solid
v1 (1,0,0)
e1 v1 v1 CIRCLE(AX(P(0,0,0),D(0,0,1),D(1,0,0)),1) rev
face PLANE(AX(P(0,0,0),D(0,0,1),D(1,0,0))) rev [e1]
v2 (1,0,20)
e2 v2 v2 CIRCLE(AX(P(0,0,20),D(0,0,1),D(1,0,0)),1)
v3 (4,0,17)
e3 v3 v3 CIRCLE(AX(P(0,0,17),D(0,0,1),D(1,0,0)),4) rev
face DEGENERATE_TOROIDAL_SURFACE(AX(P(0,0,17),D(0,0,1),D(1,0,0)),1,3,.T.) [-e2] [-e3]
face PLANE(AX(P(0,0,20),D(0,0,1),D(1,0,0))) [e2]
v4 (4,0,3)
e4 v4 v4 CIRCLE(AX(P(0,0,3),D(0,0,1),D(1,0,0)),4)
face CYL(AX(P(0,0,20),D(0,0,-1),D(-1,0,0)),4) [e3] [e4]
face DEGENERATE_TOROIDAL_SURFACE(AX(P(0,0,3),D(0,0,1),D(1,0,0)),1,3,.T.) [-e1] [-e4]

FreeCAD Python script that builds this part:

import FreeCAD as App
import Part
import Sketcher
from FreeCAD import Vector


def edges_at(feature, points):
    """Names of the edges that pass closest to the given points."""
    edges = feature.Shape.Edges
    near = lambda p: min(range(len(edges)), key=lambda i: edges[i].distToShape(Part.Vertex(*p))[0])
    return sorted({f"Edge{near(p) + 1}" for p in points})

doc = App.newDocument("Part")
params = doc.addObject("Spreadsheet::Sheet", "Params")
for row, (alias, value) in enumerate([
    ("sketch1_diameter", "8 mm"),
    ("pad1_length", "20 mm"),
    ("fillet_radius", "3 mm"),
], start=1):
    params.set(f"A{row}", alias)
    params.set(f"B{row}", "=" + value)
    params.setAlias(f"B{row}", alias)

body = doc.addObject("PartDesign::Body", "Body")

sketch1 = doc.addObject("Sketcher::SketchObject", "Sketch")
body.addObject(sketch1)
sketch1.AttachmentSupport = (doc.XY_Plane, [""])
sketch1.MapMode = "FlatFace"
sketch1.addGeometry(Part.Circle(Vector(0, 0, 0), Vector(0, 0, 1), 4), False)
sketch1.addConstraint([
    Sketcher.Constraint("Coincident", 0, 3, -1, 1),
    Sketcher.Constraint("Diameter", 0, 8.0),
])
sketch1.setExpression("Constraints[1]", "Params.sketch1_diameter")
pad1 = doc.addObject("PartDesign::Pad", "Pad")
body.addObject(pad1)
pad1.Profile = sketch1
pad1.setExpression("Length", "Params.pad1_length")
doc.recompute()

fillet = doc.addObject("PartDesign::Fillet", "Fillet")
body.addObject(fillet)
fillet.Base = (pad1, edges_at(pad1, [(-4, 0, 0), (-4, 0, 20)]))
fillet.setExpression("Radius", "Params.fillet_radius")

doc.recompute()
